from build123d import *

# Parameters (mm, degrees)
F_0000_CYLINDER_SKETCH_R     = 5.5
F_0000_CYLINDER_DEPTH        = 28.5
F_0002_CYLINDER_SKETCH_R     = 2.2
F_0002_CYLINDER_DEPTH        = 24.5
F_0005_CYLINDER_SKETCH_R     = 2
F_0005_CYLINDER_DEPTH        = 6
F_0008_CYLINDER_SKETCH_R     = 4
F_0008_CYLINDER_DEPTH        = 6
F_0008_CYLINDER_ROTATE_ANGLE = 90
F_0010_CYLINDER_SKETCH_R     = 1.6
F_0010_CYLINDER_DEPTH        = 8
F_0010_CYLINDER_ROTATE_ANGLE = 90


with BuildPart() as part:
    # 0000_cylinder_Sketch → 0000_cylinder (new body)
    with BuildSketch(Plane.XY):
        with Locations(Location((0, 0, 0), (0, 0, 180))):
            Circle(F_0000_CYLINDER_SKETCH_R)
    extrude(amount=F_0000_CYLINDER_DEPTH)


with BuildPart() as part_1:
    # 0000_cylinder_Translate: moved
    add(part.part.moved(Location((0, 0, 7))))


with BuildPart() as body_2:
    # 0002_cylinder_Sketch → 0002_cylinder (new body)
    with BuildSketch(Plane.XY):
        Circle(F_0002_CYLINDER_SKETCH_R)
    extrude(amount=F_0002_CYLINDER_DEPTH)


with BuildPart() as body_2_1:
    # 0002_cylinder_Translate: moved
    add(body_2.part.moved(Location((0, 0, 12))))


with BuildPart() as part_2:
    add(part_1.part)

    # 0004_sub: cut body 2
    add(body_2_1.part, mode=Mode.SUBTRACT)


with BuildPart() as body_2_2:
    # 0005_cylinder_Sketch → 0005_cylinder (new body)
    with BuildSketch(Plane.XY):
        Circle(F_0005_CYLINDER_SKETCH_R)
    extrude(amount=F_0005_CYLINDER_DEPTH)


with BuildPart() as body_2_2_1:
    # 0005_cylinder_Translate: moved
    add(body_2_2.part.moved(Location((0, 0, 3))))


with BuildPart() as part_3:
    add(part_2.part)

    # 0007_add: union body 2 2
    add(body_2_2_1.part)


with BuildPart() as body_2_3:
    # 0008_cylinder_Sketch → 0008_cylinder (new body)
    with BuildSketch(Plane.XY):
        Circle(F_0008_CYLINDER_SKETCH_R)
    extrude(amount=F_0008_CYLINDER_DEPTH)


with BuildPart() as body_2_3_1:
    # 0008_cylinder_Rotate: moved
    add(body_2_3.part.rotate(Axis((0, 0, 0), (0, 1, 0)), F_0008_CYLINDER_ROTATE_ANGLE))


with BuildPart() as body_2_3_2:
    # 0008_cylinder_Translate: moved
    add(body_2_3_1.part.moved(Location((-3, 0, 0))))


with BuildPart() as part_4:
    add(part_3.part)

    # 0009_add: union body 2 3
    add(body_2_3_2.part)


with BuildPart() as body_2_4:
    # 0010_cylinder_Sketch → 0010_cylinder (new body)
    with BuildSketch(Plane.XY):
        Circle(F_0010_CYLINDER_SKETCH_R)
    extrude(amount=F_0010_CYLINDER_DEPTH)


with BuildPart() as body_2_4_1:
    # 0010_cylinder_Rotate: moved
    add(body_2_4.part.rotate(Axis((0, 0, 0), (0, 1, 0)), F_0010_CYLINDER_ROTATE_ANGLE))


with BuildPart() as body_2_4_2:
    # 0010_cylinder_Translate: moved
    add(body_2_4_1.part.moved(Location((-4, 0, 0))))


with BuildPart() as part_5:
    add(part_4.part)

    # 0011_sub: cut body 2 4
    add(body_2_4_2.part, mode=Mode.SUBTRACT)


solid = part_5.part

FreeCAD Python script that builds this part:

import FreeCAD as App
import Part
import Sketcher
from FreeCAD import Vector

doc = App.newDocument("Part")
body = doc.addObject("PartDesign::Body", "Body")

# Sketch on XY plane
sketch1 = body.newObject("Sketcher::SketchObject", "Sketch")
sketch1.AttachmentSupport = (doc.getObject("XY_Plane"), [""])
sketch1.MapMode = "FlatFace"
sketch1.addGeometry(Part.Circle(Vector(0, 0, 0), Vector(0, 0, 1), 6), False)
sketch1.addConstraint(Sketcher.Constraint("Coincident", 0, 3, -1, 1))
sketch1.addConstraint(Sketcher.Constraint("Diameter", 0, 11.0))
pad1 = body.newObject("PartDesign::Pad", "Pad")
pad1.Profile = sketch1
pad1.Length = 28.5
body2 = doc.addObject("PartDesign::Body", "Body001")
doc.recompute()

body.Placement = App.Placement(Vector(0, 0, 7), App.Rotation(Vector(0, 0, 1), 0))
boolean = body2.newObject("PartDesign::Boolean", "Boolean")
boolean.Type = "Fuse"
boolean.addObjects([body])
body3 = doc.addObject("PartDesign::Body", "Body002")

# Sketch on XY plane
sketch2 = body3.newObject("Sketcher::SketchObject", "Sketch001")
sketch2.AttachmentSupport = (doc.getObject("XY_Plane002"), [""])
sketch2.MapMode = "FlatFace"
sketch2.addGeometry(Part.Circle(Vector(0, 0, 0), Vector(0, 0, 1), 2.2), False)
sketch2.addConstraint(Sketcher.Constraint("Coincident", 0, 3, -1, 1))
sketch2.addConstraint(Sketcher.Constraint("Diameter", 0, 4.4))
pad2 = body3.newObject("PartDesign::Pad", "Pad001")
pad2.Profile = sketch2
pad2.Length = 24.5
body4 = doc.addObject("PartDesign::Body", "Body003")
doc.recompute()

body3.Placement = App.Placement(Vector(0, 0, 12), App.Rotation(Vector(0, 0, 1), 0))
boolean2 = body4.newObject("PartDesign::Boolean", "Boolean001")
boolean2.Type = "Fuse"
boolean2.addObjects([body3])
doc.recompute()

boolean3 = body2.newObject("PartDesign::Boolean", "Boolean002")
boolean3.Type = "Cut"
boolean3.addObjects([body4])
body5 = doc.addObject("PartDesign::Body", "Body004")

# Sketch on XY plane
sketch3 = body5.newObject("Sketcher::SketchObject", "Sketch002")
sketch3.AttachmentSupport = (doc.getObject("XY_Plane004"), [""])
sketch3.MapMode = "FlatFace"
sketch3.addGeometry(Part.Circle(Vector(0, 0, 0), Vector(0, 0, 1), 2), False)
sketch3.addConstraint(Sketcher.Constraint("Coincident", 0, 3, -1, 1))
sketch3.addConstraint(Sketcher.Constraint("Diameter", 0, 4.0))
pad3 = body5.newObject("PartDesign::Pad", "Pad002")
pad3.Profile = sketch3
pad3.Length = 6
body6 = doc.addObject("PartDesign::Body", "Body005")
doc.recompute()

body5.Placement = App.Placement(Vector(0, 0, 3), App.Rotation(Vector(0, 0, 1), 0))
boolean4 = body6.newObject("PartDesign::Boolean", "Boolean003")
boolean4.Type = "Fuse"
boolean4.addObjects([body5])
doc.recompute()

boolean5 = body2.newObject("PartDesign::Boolean", "Boolean004")
boolean5.Type = "Fuse"
boolean5.addObjects([body6])
body7 = doc.addObject("PartDesign::Body", "Body006")

# Sketch on XY plane
sketch4 = body7.newObject("Sketcher::SketchObject", "Sketch003")
sketch4.AttachmentSupport = (doc.getObject("XY_Plane006"), [""])
sketch4.MapMode = "FlatFace"
sketch4.addGeometry(Part.Circle(Vector(0, 0, 0), Vector(0, 0, 1), 4), False)
sketch4.addConstraint(Sketcher.Constraint("Coincident", 0, 3, -1, 1))
sketch4.addConstraint(Sketcher.Constraint("Diameter", 0, 8.0))
pad4 = body7.newObject("PartDesign::Pad", "Pad003")
pad4.Profile = sketch4
pad4.Length = 6
body8 = doc.addObject("PartDesign::Body", "Body007")
doc.recompute()

body7.Placement = App.Placement(Vector(0, 0, 0), App.Rotation(Vector(0, 1, 0), 90))
boolean6 = body8.newObject("PartDesign::Boolean", "Boolean005")
boolean6.Type = "Fuse"
boolean6.addObjects([body7])
body9 = doc.addObject("PartDesign::Body", "Body008")
doc.recompute()

body8.Placement = App.Placement(Vector(-3, 0, 0), App.Rotation(Vector(0, 0, 1), 0))
boolean7 = body9.newObject("PartDesign::Boolean", "Boolean006")
boolean7.Type = "Fuse"
boolean7.addObjects([body8])
doc.recompute()

boolean8 = body2.newObject("PartDesign::Boolean", "Boolean007")
boolean8.Type = "Fuse"
boolean8.addObjects([body9])
body10 = doc.addObject("PartDesign::Body", "Body009")

# Sketch on XY plane
sketch5 = body10.newObject("Sketcher::SketchObject", "Sketch004")
sketch5.AttachmentSupport = (doc.getObject("XY_Plane009"), [""])
sketch5.MapMode = "FlatFace"
sketch5.addGeometry(Part.Circle(Vector(0, 0, 0), Vector(0, 0, 1), 1.6), False)
sketch5.addConstraint(Sketcher.Constraint("Coincident", 0, 3, -1, 1))
sketch5.addConstraint(Sketcher.Constraint("Diameter", 0, 3.2))
pad5 = body10.newObject("PartDesign::Pad", "Pad004")
pad5.Profile = sketch5
pad5.Length = 8
body11 = doc.addObject("PartDesign::Body", "Body010")
doc.recompute()

body10.Placement = App.Placement(Vector(0, 0, 0), App.Rotation(Vector(0, 1, 0), 90))
boolean9 = body11.newObject("PartDesign::Boolean", "Boolean008")
boolean9.Type = "Fuse"
boolean9.addObjects([body10])
body12 = doc.addObject("PartDesign::Body", "Body011")
doc.recompute()

body11.Placement = App.Placement(Vector(-4, 0, 0), App.Rotation(Vector(0, 0, 1), 0))
boolean10 = body12.newObject("PartDesign::Boolean", "Boolean009")
boolean10.Type = "Fuse"
boolean10.addObjects([body11])
doc.recompute()

boolean11 = body2.newObject("PartDesign::Boolean", "Boolean010")
boolean11.Type = "Cut"
boolean11.addObjects([body12])

doc.recompute()
